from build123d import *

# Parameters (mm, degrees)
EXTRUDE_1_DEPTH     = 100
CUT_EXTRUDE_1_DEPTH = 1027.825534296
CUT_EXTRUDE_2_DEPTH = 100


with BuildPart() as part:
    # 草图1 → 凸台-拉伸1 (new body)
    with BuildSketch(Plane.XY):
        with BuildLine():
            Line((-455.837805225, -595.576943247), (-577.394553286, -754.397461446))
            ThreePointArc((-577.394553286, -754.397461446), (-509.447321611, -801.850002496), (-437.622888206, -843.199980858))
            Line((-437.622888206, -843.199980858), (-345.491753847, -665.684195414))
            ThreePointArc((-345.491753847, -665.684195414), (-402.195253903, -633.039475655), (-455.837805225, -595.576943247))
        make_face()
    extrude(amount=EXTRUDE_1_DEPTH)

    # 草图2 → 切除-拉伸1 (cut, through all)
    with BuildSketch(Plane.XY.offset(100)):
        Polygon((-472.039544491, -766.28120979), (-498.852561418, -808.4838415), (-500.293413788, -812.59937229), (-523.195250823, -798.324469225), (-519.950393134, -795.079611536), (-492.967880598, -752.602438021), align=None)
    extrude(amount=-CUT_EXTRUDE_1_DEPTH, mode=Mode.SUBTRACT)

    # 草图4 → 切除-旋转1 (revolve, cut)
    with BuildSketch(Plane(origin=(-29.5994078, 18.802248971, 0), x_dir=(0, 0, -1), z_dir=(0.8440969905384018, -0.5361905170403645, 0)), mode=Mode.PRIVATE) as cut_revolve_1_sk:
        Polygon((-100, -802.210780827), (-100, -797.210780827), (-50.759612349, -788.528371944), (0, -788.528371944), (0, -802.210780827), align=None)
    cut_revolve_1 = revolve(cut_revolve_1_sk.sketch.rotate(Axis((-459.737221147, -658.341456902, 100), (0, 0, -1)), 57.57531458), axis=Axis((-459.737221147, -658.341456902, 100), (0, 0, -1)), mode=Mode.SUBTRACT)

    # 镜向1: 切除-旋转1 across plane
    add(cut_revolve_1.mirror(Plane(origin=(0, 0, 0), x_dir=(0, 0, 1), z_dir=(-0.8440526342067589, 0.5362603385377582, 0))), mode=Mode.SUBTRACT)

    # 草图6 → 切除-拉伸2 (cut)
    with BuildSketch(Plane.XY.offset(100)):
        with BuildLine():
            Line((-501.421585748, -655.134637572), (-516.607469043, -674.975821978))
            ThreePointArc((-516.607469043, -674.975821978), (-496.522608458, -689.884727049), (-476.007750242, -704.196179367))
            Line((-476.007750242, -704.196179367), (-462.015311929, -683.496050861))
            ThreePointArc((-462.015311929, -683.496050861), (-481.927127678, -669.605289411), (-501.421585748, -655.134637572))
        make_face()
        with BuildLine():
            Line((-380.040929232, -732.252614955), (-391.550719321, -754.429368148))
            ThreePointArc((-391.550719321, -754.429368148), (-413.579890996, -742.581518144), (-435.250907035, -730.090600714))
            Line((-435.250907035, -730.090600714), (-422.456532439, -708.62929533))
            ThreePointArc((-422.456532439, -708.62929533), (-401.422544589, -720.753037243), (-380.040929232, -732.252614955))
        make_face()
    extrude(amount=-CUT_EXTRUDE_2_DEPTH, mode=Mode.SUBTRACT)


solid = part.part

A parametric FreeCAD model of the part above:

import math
import FreeCAD as App
import Part
import Sketcher

V = App.Vector
Q = App.Units.Quantity

doc = App.newDocument("Part")
params = doc.addObject("Spreadsheet::Sheet", "Params")
for row, (alias, value) in enumerate([
    ("sketch1_radius", "950 mm"),
    ("sketch1_radius2", "750 mm"),
    ("pad1_length", "100 mm"),
    ("sketch2_length", "50 mm"),
    ("sketch3_width", "100 mm"),
    ("sketch3_height", "5 mm"),
    ("sketch3_length", "50 mm"),
    ("groove_angle", "360 deg"),
    ("sketch4_radius", "825.000001 mm"),
    ("pocket2_length", "100 mm"),
], start=1):
    params.set(f"A{row}", alias)
    params.set(f"B{row}", "=" + value)
    params.setAlias(f"B{row}", alias)

body = doc.addObject("PartDesign::Body", "Body")

sketch1 = body.newObject("Sketcher::SketchObject", "Sketch")
sketch1.AttachmentSupport = (doc.getObject("XY_Plane"), [""])
sketch1.MapMode = "FlatFace"
sketch1.addGeometry([
    Part.LineSegment(V(-456, -596, 0), V(-577, -754, 0)),
    Part.ArcOfCircle(Part.Circle(V(0, 0, 0), V(0, 0, 1), 950), math.radians(-127.43), math.radians(-117.43)),
    Part.LineSegment(V(-438, -843, 0), V(-345, -666, 0)),
    Part.ArcOfCircle(Part.Circle(V(0, 0, 0), V(0, 0, 1), 750), math.radians(-127.43), math.radians(-117.43)),
], False)
sketch1.addConstraint([
    Sketcher.Constraint("Coincident", 0, 2, 1, 1),
    Sketcher.Constraint("Coincident", 1, 2, 2, 1),
    Sketcher.Constraint("Coincident", 2, 2, 3, 2),
    Sketcher.Constraint("Coincident", 3, 1, 0, 1),
    Sketcher.Constraint("Coincident", 1, 3, -1, 1),
    Sketcher.Constraint("Coincident", 3, 3, -1, 1),
    Sketcher.Constraint("Radius", 1, Q("950 mm")),
    Sketcher.Constraint("Radius", 3, Q("750 mm")),
    Sketcher.Constraint("DistanceX", 0, 2, 2, 2, Q("231.902799 mm")),
    Sketcher.Constraint("DistanceY", 0, 2, -1, 1, Q("754.397461 mm")),
    Sketcher.Constraint("Angle", 0, Q("-127.429425 deg")),
    Sketcher.Constraint("Angle", 2, Q("62.570575 deg")),
])
sketch1.setExpression("Constraints[6]", "Params.sketch1_radius")
sketch1.setExpression("Constraints[7]", "Params.sketch1_radius2")
pad1 = body.newObject("PartDesign::Pad", "Pad")
pad1.Profile = sketch1
pad1.setExpression("Length", "Params.pad1_length")

sketch2 = body.newObject("Sketcher::SketchObject", "Sketch001")
sketch2.AttachmentSupport = (doc.getObject("XY_Plane"), [""])
sketch2.MapMode = "FlatFace"
sketch2.AttachmentOffset = App.Placement(V(0, 0, 100), App.Rotation())
sketch2.addGeometry([
    Part.LineSegment(V(-498.9, -808.5, 0), V(-472, -766.3, 0)),
    Part.LineSegment(V(-472, -766.3, 0), V(-493, -752.6, 0)),
    Part.LineSegment(V(-493, -752.6, 0), V(-520, -795.1, 0)),
    Part.LineSegment(V(-520, -795.1, 0), V(-523.2, -798.3, 0)),
    Part.LineSegment(V(-523.2, -798.3, 0), V(-500.3, -812.6, 0)),
    Part.LineSegment(V(-500.3, -812.6, 0), V(-498.9, -808.5, 0)),
], False)
sketch2.addConstraint([
    Sketcher.Constraint("Coincident", 0, 2, 1, 1),
    Sketcher.Constraint("Coincident", 1, 2, 2, 1),
    Sketcher.Constraint("Coincident", 2, 2, 3, 1),
    Sketcher.Constraint("Coincident", 3, 2, 4, 1),
    Sketcher.Constraint("Coincident", 4, 2, 5, 1),
    Sketcher.Constraint("Coincident", 5, 2, 0, 1),
    Sketcher.Constraint("Angle", 3, Q("-135 deg")),
    Sketcher.Constraint("Distance", 0, Q("50 mm")),
    Sketcher.Constraint("DistanceY", 2, 2, 0, 2, Q("28.798402 mm")),
    Sketcher.Constraint("Distance", 1, Q("25.002081 mm")),
    Sketcher.Constraint("Distance", 2, Q("50.322622 mm")),
    Sketcher.Constraint("Distance", 3, Q("4.588922 mm")),
    Sketcher.Constraint("DistanceY", 0, 2, -1, 1, Q("766.28121 mm")),
    Sketcher.Constraint("DistanceX", 1, 2, -1, 1, Q("492.967881 mm")),
    Sketcher.Constraint("DistanceY", 1, 2, -1, 1, Q("752.602438 mm")),
    Sketcher.Constraint("DistanceX", 5, 2, -1, 1, Q("498.852561 mm")),
    Sketcher.Constraint("DistanceX", 2, 2, 4, 2, Q("19.656979 mm")),
    Sketcher.Constraint("DistanceY", 4, 2, 2, 2, Q("17.519761 mm")),
])
sketch2.setExpression("Constraints[7]", "Params.sketch2_length")
pocket1 = body.newObject("PartDesign::Pocket", "Pocket")
pocket1.Profile = sketch2
pocket1.Type = "ThroughAll"

sketch3 = body.newObject("Sketcher::SketchObject", "Sketch002")
sketch3.Placement = App.Placement(V(-29.599408, 18.802249, 0), App.Rotation(V(0, 0, -1), V(0.536190517, 0.844096991, 0), V(0.844096991, -0.536190517, 0), "ZXY"))
sketch3.addGeometry([
    Part.LineSegment(V(-100, -797, 0), V(-100, -802, 0)),
    Part.LineSegment(V(-100, -802, 0), V(0, -802, 0)),
    Part.LineSegment(V(0, -802, 0), V(0, -789, 0)),
    Part.LineSegment(V(0, -789, 0), V(-51, -789, 0)),
    Part.LineSegment(V(-51, -789, 0), V(-100, -797, 0)),
], False)
sketch3.addGeometry(Part.LineSegment(V(-100, -802, 0), V(0, -802, 0)), True)
sketch3.addConstraint([
    Sketcher.Constraint("Coincident", 0, 2, 1, 1),
    Sketcher.Constraint("Coincident", 1, 2, 2, 1),
    Sketcher.Constraint("Coincident", 2, 2, 3, 1),
    Sketcher.Constraint("Coincident", 3, 2, 4, 1),
    Sketcher.Constraint("Coincident", 4, 2, 0, 1),
    Sketcher.Constraint("Vertical", 0),
    Sketcher.Constraint("Horizontal", 1),
    Sketcher.Constraint("Vertical", 2),
    Sketcher.Constraint("Horizontal", 3),
    Sketcher.Constraint("Horizontal", 5),
    Sketcher.Constraint("Coincident", 5, 1, 0, 2),
    Sketcher.Constraint("PointOnObject", 1, 2, -2),
    Sketcher.Constraint("PointOnObject", 5, 2, -2),
    Sketcher.Constraint("DistanceX", 1, 1, 1, 2, Q("100 mm")),
    Sketcher.Constraint("DistanceY", 0, 2, 0, 1, Q("5 mm")),
    Sketcher.Constraint("Angle", 4, Q("-170 deg")),
    Sketcher.Constraint("Distance", 4, Q("50 mm")),
    Sketcher.Constraint("DistanceY", 0, 2, -1, 1, Q("802.210781 mm")),
])
sketch3.setExpression("Constraints[13]", "Params.sketch3_width")
sketch3.setExpression("Constraints[14]", "Params.sketch3_height")
sketch3.setExpression("Constraints[16]", "Params.sketch3_length")
groove = body.newObject("PartDesign::Groove", "Groove")
groove.Profile = sketch3
groove.ReferenceAxis = (sketch3, ["Axis0"])
groove.setExpression("Angle", "Params.groove_angle")
doc.recompute()

datumplane = body.newObject("PartDesign::Plane", "DatumPlane")
datumplane.Placement = App.Placement(V(0, 0, 0), App.Rotation(V(0.536260339, 0.844052634, 0), V(0, 0, -1), V(-0.844052634, 0.536260339, 0), "ZXY"))
mirrored = body.newObject("PartDesign::Mirrored", "Mirrored")
mirrored.Originals = [groove]
mirrored.MirrorPlane = (datumplane, [""])
body.Tip = mirrored

sketch4 = body.newObject("Sketcher::SketchObject", "Sketch003")
sketch4.AttachmentSupport = (doc.getObject("XY_Plane"), [""])
sketch4.MapMode = "FlatFace"
sketch4.AttachmentOffset = App.Placement(V(0, 0, 100), App.Rotation())
sketch4.addGeometry([
    Part.LineSegment(V(-501, -655, 0), V(-517, -675, 0)),
    Part.ArcOfCircle(Part.Circle(V(0, 0, 0), V(0, 0, 1), 850), math.radians(-127.43), math.radians(-124.06)),
    Part.LineSegment(V(-476, -704, 0), V(-462, -683, 0)),
    Part.ArcOfCircle(Part.Circle(V(0, 0, 0), V(0, 0, 1), 825), math.radians(-127.43), math.radians(-124.06)),
    Part.LineSegment(V(-392, -754, 0), V(-380, -732, 0)),
    Part.ArcOfCircle(Part.Circle(V(0, 0, 0), V(0, 0, 1), 825), math.radians(-120.8), math.radians(-117.43)),
    Part.LineSegment(V(-422, -709, 0), V(-435, -730, 0)),
    Part.ArcOfCircle(Part.Circle(V(0, 0, 0), V(0, 0, 1), 850), math.radians(-120.8), math.radians(-117.43)),
], False)
sketch4.addConstraint([
    Sketcher.Constraint("Coincident", 0, 2, 1, 1),
    Sketcher.Constraint("Coincident", 1, 2, 2, 1),
    Sketcher.Constraint("Coincident", 2, 2, 3, 2),
    Sketcher.Constraint("Coincident", 3, 1, 0, 1),
    Sketcher.Constraint("Coincident", 4, 2, 5, 2),
    Sketcher.Constraint("Coincident", 5, 1, 6, 1),
    Sketcher.Constraint("Coincident", 6, 2, 7, 1),
    Sketcher.Constraint("Coincident", 7, 2, 4, 1),
    Sketcher.Constraint("Coincident", 1, 3, -1, 1),
    Sketcher.Constraint("Coincident", 3, 3, -1, 1),
    Sketcher.Constraint("Coincident", 5, 3, -1, 1),
    Sketcher.Constraint("Coincident", 7, 3, -1, 1),
    Sketcher.Constraint("Equal", 3, 5),
    Sketcher.Constraint("Equal", 1, 7),
    Sketcher.Constraint("Radius", 3, Q("825.000001 mm")),
    Sketcher.Constraint("Radius", 1, Q("849.985669 mm")),
    Sketcher.Constraint("DistanceY", 6, 2, -1, 1, Q("730.090601 mm")),
    Sketcher.Constraint("DistanceX", 0, 2, -1, 1, Q("516.607469 mm")),
    Sketcher.Constraint("DistanceX", 2, 2, -1, 1, Q("462.015312 mm")),
    Sketcher.Constraint("DistanceX", 4, 2, -1, 1, Q("380.040929 mm")),
    Sketcher.Constraint("Angle", 0, Q("-127.429425 deg")),
    Sketcher.Constraint("Angle", 2, Q("55.942919 deg")),
    Sketcher.Constraint("Angle", 4, Q("62.570575 deg")),
    Sketcher.Constraint("Angle", 6, Q("-120.801712 deg")),
])
sketch4.setExpression("Constraints[14]", "Params.sketch4_radius")
pocket2 = body.newObject("PartDesign::Pocket", "Pocket001")
pocket2.Profile = sketch4
pocket2.setExpression("Length", "Params.pocket2_length")

doc.recompute()
